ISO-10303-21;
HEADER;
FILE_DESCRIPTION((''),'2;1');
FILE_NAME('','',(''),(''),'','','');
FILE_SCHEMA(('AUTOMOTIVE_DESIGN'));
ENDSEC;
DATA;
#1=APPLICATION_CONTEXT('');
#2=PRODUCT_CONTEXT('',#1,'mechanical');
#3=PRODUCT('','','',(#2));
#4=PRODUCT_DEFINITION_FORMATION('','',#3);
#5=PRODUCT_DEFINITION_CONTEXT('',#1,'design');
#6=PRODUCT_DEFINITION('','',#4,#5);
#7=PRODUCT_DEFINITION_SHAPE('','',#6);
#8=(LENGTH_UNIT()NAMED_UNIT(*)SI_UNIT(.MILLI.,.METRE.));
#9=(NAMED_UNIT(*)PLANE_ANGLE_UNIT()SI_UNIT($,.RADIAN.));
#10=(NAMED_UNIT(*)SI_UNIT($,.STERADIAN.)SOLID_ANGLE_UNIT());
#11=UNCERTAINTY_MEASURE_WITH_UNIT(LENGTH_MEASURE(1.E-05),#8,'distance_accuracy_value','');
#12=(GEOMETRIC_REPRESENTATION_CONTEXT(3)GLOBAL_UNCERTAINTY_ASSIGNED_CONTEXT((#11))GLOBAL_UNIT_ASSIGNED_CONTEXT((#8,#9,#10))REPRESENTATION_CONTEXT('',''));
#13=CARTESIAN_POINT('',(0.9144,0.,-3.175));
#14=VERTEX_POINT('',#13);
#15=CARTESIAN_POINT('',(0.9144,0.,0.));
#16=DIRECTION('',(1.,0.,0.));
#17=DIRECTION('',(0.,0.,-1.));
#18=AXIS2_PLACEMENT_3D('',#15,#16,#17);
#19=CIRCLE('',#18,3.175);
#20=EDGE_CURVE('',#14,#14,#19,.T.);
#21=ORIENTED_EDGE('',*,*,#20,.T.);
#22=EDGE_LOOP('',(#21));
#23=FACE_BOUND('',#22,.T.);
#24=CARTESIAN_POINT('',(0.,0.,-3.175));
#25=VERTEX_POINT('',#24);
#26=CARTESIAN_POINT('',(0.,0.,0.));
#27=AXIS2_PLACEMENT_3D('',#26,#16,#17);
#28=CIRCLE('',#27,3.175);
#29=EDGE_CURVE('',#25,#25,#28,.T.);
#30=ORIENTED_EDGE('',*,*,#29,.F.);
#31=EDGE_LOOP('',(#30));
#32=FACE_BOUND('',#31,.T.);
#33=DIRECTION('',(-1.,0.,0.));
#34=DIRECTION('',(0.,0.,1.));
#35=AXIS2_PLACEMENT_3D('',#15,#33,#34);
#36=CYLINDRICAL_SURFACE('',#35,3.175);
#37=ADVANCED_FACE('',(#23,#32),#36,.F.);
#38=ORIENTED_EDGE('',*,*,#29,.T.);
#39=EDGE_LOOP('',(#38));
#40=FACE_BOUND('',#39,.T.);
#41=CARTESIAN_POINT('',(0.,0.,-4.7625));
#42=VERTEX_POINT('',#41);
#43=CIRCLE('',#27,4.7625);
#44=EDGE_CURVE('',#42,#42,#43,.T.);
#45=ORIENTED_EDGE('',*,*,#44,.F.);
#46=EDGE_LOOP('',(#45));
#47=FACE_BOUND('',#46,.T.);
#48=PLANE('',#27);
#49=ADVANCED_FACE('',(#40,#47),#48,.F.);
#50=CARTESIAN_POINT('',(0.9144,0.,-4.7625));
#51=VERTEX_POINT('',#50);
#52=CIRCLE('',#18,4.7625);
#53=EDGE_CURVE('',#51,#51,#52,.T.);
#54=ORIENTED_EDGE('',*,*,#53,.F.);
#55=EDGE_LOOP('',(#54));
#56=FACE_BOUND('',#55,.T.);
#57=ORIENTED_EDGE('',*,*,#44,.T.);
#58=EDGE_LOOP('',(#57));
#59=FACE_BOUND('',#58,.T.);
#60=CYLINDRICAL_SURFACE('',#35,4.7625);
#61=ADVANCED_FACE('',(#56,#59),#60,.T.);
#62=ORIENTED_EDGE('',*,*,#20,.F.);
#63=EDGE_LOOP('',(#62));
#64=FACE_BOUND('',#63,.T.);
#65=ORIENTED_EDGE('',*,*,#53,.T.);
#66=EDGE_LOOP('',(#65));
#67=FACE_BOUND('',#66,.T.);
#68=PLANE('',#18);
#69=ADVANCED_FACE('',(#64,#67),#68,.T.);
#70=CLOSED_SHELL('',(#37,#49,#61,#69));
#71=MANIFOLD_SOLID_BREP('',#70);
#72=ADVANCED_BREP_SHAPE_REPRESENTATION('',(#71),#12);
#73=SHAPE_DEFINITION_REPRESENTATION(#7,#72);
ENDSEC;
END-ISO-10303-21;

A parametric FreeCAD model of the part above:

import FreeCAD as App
import Part
import Sketcher
from FreeCAD import Vector
Q = App.Units.Quantity

doc = App.newDocument("Part")
body = doc.addObject("PartDesign::Body", "Body")

# Sketch on YZ plane
sketch1 = doc.addObject("Sketcher::SketchObject", "Sketch")
body.addObject(sketch1)
sketch1.AttachmentSupport = (doc.YZ_Plane, [""])
sketch1.MapMode = "FlatFace"
sketch1.addGeometry(Part.Circle(Vector(0, 0, 0), Vector(0, 0, 1), 4.8), False)
sketch1.addGeometry(Part.Circle(Vector(0, 0, 0), Vector(0, 0, 1), 3.2), False)
sketch1.addConstraint(Sketcher.Constraint("Coincident", 0, 3, -1, 1))
sketch1.addConstraint(Sketcher.Constraint("Coincident", 1, 3, -1, 1))
sketch1.addConstraint(Sketcher.Constraint("Diameter", 1, Q("0.25 in")))
sketch1.addConstraint(Sketcher.Constraint("Diameter", 0, Q("0.375 in")))
pad1 = doc.addObject("PartDesign::Pad", "Pad")
body.addObject(pad1)
pad1.Profile = sketch1
pad1.Length = Q("0.036 in")

doc.recompute()
